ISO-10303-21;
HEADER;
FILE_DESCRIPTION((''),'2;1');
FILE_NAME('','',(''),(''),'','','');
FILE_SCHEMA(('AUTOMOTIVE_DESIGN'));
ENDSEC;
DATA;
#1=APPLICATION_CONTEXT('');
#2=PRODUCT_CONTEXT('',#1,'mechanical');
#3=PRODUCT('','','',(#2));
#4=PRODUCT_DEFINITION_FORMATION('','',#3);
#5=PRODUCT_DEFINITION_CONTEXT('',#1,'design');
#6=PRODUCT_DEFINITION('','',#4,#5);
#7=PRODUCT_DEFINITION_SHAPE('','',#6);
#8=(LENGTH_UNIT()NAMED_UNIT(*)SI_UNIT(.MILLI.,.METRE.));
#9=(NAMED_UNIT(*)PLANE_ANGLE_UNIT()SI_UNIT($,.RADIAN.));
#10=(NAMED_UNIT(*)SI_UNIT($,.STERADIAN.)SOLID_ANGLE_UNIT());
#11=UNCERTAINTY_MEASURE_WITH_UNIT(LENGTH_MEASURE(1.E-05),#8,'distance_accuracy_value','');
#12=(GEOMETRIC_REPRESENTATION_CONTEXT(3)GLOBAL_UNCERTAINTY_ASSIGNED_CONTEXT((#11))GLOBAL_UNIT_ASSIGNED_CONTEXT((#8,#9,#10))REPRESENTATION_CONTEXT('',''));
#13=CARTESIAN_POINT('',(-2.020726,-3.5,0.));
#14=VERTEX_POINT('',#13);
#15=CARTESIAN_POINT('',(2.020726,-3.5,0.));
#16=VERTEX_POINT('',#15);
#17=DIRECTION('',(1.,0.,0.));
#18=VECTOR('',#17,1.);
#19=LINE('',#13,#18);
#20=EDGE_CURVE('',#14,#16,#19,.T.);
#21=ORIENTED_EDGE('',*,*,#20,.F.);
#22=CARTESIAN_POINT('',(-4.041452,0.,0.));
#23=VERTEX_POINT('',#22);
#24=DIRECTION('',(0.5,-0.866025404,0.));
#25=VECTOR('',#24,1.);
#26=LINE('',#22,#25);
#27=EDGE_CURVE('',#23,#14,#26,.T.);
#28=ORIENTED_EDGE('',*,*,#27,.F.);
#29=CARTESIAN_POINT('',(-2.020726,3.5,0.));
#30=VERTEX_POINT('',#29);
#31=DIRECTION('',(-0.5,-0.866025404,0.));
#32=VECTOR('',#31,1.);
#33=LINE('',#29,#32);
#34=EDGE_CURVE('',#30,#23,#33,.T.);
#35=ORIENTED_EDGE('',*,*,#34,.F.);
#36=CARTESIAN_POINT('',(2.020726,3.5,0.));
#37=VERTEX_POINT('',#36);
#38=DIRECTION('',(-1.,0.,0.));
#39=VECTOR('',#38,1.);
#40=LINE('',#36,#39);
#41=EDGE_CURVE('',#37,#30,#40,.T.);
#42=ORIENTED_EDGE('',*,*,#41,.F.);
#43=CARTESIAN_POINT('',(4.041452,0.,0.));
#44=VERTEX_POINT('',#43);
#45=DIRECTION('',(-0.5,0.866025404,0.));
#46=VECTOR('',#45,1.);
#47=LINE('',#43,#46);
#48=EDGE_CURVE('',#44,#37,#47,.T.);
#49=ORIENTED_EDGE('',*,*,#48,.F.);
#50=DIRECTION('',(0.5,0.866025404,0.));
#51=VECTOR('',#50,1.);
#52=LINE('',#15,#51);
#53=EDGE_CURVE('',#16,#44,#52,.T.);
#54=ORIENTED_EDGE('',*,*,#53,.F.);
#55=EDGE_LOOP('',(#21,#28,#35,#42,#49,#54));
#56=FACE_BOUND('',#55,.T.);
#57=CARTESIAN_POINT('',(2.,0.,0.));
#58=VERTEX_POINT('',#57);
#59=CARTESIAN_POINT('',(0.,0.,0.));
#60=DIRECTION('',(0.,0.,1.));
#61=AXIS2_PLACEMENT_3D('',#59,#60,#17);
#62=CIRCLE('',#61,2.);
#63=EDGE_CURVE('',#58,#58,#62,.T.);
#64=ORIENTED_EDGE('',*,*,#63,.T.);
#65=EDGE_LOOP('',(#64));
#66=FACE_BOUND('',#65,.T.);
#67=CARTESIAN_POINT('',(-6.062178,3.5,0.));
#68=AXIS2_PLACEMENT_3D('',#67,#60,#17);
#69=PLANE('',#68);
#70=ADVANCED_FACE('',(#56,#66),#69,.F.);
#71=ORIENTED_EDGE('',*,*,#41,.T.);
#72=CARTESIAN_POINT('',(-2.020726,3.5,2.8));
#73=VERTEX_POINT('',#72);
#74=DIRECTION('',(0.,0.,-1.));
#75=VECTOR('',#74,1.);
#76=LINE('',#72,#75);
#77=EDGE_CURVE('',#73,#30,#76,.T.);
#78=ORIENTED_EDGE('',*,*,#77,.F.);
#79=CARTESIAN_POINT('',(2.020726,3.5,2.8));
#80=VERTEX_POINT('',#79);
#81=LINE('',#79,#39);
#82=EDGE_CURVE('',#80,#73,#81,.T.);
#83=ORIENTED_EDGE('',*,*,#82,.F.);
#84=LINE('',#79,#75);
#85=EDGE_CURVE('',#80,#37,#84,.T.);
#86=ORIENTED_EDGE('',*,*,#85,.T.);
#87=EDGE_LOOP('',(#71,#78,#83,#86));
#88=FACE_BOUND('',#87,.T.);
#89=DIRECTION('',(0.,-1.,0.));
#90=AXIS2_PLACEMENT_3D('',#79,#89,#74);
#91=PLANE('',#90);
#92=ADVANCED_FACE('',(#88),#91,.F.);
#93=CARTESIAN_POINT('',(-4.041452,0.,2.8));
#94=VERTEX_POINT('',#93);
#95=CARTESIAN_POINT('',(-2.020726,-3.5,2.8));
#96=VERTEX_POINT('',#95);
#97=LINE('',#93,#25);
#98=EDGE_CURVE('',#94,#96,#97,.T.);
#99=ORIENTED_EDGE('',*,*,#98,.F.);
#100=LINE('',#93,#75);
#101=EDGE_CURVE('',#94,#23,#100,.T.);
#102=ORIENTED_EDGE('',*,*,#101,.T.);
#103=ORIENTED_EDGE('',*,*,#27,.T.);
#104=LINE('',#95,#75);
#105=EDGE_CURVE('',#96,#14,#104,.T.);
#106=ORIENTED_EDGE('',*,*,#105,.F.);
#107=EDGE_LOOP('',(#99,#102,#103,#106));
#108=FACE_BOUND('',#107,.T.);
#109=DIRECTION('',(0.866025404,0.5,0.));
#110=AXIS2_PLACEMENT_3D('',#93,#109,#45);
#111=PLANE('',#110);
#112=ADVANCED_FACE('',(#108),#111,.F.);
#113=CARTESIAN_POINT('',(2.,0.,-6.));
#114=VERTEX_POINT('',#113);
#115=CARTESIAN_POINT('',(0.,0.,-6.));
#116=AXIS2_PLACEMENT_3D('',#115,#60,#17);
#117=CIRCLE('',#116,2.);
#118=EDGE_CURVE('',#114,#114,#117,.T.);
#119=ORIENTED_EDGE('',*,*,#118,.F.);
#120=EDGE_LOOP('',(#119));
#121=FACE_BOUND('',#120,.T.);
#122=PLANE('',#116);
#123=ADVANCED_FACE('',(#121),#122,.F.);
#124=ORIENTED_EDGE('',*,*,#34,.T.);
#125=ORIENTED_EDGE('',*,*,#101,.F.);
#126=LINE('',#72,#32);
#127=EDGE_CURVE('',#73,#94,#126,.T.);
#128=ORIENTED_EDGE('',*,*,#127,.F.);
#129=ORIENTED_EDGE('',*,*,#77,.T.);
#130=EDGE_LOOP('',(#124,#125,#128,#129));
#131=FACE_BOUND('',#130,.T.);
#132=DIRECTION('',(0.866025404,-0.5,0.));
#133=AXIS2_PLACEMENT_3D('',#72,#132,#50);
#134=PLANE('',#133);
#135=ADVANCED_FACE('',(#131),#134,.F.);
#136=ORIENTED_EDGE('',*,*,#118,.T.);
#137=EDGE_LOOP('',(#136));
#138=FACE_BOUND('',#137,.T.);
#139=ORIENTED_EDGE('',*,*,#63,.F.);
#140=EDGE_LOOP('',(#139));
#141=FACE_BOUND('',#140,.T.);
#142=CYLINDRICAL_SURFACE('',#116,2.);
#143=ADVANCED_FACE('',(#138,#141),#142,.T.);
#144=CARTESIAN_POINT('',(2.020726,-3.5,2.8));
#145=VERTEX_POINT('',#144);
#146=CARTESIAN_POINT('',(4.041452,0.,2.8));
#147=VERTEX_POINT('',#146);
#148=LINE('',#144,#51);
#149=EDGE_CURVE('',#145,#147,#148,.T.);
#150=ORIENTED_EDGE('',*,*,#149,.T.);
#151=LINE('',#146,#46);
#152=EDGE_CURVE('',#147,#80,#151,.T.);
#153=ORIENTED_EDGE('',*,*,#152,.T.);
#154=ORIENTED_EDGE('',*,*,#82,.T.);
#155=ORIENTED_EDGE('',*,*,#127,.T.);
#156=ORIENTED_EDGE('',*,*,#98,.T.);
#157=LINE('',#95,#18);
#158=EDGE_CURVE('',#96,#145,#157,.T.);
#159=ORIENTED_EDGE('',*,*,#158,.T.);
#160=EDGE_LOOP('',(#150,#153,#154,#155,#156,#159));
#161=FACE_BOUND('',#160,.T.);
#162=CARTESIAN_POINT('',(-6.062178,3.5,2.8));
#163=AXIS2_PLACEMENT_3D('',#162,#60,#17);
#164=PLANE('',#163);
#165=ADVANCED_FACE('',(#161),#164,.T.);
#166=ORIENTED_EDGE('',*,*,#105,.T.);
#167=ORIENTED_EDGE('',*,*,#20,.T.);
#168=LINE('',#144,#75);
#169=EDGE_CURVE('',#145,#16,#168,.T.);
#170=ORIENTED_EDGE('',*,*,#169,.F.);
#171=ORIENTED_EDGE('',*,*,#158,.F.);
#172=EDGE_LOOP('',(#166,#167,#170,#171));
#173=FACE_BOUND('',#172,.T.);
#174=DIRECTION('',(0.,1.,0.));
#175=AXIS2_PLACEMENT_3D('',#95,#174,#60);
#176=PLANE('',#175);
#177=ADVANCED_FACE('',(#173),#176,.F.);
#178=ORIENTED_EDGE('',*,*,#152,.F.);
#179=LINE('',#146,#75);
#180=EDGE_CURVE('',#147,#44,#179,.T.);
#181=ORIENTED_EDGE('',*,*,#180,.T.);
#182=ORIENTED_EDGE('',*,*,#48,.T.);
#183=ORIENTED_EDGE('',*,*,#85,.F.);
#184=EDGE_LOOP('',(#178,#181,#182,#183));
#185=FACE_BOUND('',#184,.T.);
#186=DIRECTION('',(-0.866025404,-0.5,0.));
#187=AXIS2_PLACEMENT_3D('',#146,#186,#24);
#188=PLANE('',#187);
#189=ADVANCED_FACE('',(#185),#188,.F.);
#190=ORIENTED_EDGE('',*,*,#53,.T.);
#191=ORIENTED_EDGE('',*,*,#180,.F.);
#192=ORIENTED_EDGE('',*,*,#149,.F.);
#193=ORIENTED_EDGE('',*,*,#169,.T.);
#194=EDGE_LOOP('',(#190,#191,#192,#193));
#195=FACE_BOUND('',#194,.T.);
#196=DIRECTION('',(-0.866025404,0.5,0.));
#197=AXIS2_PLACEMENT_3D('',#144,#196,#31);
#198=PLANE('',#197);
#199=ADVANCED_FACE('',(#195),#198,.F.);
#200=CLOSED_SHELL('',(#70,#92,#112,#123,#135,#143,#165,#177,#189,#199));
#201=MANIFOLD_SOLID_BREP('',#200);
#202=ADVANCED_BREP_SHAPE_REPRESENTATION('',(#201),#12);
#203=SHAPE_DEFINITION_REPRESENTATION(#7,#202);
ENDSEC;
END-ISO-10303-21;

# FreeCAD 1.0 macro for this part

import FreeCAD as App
import Part
import Sketcher
from FreeCAD import Vector
Q = App.Units.Quantity

doc = App.newDocument("Part")
body = doc.addObject("PartDesign::Body", "Body")

sketch1 = doc.addObject("Sketcher::SketchObject", "Sketch")
body.addObject(sketch1)
sketch1.AttachmentSupport = (doc.XY_Plane, [""])
sketch1.MapMode = "FlatFace"
sketch1.addGeometry(Part.Circle(Vector(0, 0, 0), Vector(0, 0, 1), 2), False)
sketch1.addConstraint([
    Sketcher.Constraint("Coincident", 0, 3, -1, 1),
    Sketcher.Constraint("Diameter", 0, Q("4 mm")),
])
pad1 = doc.addObject("PartDesign::Pad", "Pad")
body.addObject(pad1)
pad1.Profile = sketch1
pad1.Length = 6
pad1.Reversed = True

sketch2 = doc.addObject("Sketcher::SketchObject", "Sketch001")
body.addObject(sketch2)
sketch2.AttachmentSupport = (doc.XY_Plane, [""])
sketch2.MapMode = "FlatFace"
sketch2.addGeometry([
    Part.LineSegment(Vector(-2.020726, 3.5, 0), Vector(-4.041452, 0, 0)),
    Part.LineSegment(Vector(-4.041452, 0, 0), Vector(-2.020726, -3.5, 0)),
    Part.LineSegment(Vector(-2.020726, -3.5, 0), Vector(2.020726, -3.5, 0)),
    Part.LineSegment(Vector(2.020726, -3.5, 0), Vector(4.041452, 0, 0)),
    Part.LineSegment(Vector(4.041452, 0, 0), Vector(2.020726, 3.5, 0)),
    Part.LineSegment(Vector(2.020726, 3.5, 0), Vector(-2.020726, 3.5, 0)),
], False)
sketch2.addConstraint([
    Sketcher.Constraint("Coincident", 0, 2, 1, 1),
    Sketcher.Constraint("Coincident", 1, 2, 2, 1),
    Sketcher.Constraint("Coincident", 2, 2, 3, 1),
    Sketcher.Constraint("Coincident", 3, 2, 4, 1),
    Sketcher.Constraint("Coincident", 4, 2, 5, 1),
    Sketcher.Constraint("Coincident", 5, 2, 0, 1),
    Sketcher.Constraint("Horizontal", 2),
    Sketcher.Constraint("Horizontal", 5),
    Sketcher.Constraint("Symmetric", 0, 2, 3, 2, -1, 1),
    Sketcher.Constraint("Symmetric", 1, 2, 4, 2, -1, 1),
    Sketcher.Constraint("PointOnObject", 0, 2, -1),
    Sketcher.Constraint("Parallel", 0, 3),
    Sketcher.Constraint("Vertical", 2, 2, 4, 2),
    Sketcher.Constraint("Angle", 0, Q("-120 deg")),
    Sketcher.Constraint("DistanceY", 2, 2, 4, 2, Q("7 mm")),
    Sketcher.Constraint("DistanceX", 2, 1, 2, 2, Q("4.041452 mm")),
])
pad2 = doc.addObject("PartDesign::Pad", "Pad001")
body.addObject(pad2)
pad2.Profile = sketch2
pad2.Length = 2.8

doc.recompute()
